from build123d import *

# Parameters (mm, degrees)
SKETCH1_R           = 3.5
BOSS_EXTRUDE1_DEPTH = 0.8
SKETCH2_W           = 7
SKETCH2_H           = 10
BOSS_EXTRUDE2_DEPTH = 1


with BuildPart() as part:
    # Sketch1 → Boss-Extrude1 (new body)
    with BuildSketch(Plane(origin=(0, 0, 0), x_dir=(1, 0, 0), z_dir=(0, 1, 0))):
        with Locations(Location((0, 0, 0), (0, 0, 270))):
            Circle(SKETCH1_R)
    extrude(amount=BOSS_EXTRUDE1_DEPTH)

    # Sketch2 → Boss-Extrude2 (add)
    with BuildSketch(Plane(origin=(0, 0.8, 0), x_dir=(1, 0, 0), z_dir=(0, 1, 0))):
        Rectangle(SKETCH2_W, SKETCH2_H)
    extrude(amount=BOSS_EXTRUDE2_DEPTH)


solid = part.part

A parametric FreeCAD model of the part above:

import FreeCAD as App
import Part
import Sketcher

V = App.Vector
Q = App.Units.Quantity


def add_polygon(sketch, points):
    """Adds a closed chain of lines whose ends are joined by coincident constraints."""
    first, n = sketch.GeometryCount, len(points)
    for a, b in zip(points, points[1:] + points[:1]):
        sketch.addGeometry(Part.LineSegment(App.Vector(*a, 0), App.Vector(*b, 0)), False)
    for i in range(n):
        sketch.addConstraint(Sketcher.Constraint("Coincident", first + i, 2, first + (i + 1) % n, 1))

doc = App.newDocument("Part")
body = doc.addObject("PartDesign::Body", "Body")

# Sketch on XZ plane
sketch1 = doc.addObject("Sketcher::SketchObject", "Sketch")
body.addObject(sketch1)
sketch1.AttachmentSupport = (doc.XZ_Plane, [""])
sketch1.MapMode = "FlatFace"
sketch1.addGeometry(Part.Circle(V(0, 0, 0), V(0, 0, 1), 3.5), False)
sketch1.addConstraint([
    Sketcher.Constraint("Coincident", 0, 3, -1, 1),
    Sketcher.Constraint("Diameter", 0, Q("7 mm")),
])
pad1 = doc.addObject("PartDesign::Pad", "Pad")
body.addObject(pad1)
pad1.Profile = sketch1
pad1.Length = 0.8
pad1.Reversed = True

# Sketch on XZ plane
sketch2 = doc.addObject("Sketcher::SketchObject", "Sketch001")
body.addObject(sketch2)
sketch2.AttachmentSupport = (doc.XZ_Plane, [""])
sketch2.MapMode = "FlatFace"
sketch2.AttachmentOffset = App.Placement(V(0, 0, -0.8), App.Rotation())
add_polygon(sketch2, [(-4, -5), (-4, 5), (4, 5), (4, -5)])  # lines 0-3
sketch2.addConstraint([
    Sketcher.Constraint("Vertical", 0),
    Sketcher.Constraint("Horizontal", 1),
    Sketcher.Constraint("Vertical", 2),
    Sketcher.Constraint("Horizontal", 3),
    Sketcher.Constraint("Symmetric", 0, 2, 2, 2, -1, 1),
    Sketcher.Constraint("DistanceX", 1, 1, 1, 2, Q("7 mm")),
    Sketcher.Constraint("DistanceY", 0, 1, 0, 2, Q("10 mm")),
])
pad2 = doc.addObject("PartDesign::Pad", "Pad001")
body.addObject(pad2)
pad2.Profile = sketch2
pad2.Length = 1
pad2.Reversed = True

doc.recompute()
